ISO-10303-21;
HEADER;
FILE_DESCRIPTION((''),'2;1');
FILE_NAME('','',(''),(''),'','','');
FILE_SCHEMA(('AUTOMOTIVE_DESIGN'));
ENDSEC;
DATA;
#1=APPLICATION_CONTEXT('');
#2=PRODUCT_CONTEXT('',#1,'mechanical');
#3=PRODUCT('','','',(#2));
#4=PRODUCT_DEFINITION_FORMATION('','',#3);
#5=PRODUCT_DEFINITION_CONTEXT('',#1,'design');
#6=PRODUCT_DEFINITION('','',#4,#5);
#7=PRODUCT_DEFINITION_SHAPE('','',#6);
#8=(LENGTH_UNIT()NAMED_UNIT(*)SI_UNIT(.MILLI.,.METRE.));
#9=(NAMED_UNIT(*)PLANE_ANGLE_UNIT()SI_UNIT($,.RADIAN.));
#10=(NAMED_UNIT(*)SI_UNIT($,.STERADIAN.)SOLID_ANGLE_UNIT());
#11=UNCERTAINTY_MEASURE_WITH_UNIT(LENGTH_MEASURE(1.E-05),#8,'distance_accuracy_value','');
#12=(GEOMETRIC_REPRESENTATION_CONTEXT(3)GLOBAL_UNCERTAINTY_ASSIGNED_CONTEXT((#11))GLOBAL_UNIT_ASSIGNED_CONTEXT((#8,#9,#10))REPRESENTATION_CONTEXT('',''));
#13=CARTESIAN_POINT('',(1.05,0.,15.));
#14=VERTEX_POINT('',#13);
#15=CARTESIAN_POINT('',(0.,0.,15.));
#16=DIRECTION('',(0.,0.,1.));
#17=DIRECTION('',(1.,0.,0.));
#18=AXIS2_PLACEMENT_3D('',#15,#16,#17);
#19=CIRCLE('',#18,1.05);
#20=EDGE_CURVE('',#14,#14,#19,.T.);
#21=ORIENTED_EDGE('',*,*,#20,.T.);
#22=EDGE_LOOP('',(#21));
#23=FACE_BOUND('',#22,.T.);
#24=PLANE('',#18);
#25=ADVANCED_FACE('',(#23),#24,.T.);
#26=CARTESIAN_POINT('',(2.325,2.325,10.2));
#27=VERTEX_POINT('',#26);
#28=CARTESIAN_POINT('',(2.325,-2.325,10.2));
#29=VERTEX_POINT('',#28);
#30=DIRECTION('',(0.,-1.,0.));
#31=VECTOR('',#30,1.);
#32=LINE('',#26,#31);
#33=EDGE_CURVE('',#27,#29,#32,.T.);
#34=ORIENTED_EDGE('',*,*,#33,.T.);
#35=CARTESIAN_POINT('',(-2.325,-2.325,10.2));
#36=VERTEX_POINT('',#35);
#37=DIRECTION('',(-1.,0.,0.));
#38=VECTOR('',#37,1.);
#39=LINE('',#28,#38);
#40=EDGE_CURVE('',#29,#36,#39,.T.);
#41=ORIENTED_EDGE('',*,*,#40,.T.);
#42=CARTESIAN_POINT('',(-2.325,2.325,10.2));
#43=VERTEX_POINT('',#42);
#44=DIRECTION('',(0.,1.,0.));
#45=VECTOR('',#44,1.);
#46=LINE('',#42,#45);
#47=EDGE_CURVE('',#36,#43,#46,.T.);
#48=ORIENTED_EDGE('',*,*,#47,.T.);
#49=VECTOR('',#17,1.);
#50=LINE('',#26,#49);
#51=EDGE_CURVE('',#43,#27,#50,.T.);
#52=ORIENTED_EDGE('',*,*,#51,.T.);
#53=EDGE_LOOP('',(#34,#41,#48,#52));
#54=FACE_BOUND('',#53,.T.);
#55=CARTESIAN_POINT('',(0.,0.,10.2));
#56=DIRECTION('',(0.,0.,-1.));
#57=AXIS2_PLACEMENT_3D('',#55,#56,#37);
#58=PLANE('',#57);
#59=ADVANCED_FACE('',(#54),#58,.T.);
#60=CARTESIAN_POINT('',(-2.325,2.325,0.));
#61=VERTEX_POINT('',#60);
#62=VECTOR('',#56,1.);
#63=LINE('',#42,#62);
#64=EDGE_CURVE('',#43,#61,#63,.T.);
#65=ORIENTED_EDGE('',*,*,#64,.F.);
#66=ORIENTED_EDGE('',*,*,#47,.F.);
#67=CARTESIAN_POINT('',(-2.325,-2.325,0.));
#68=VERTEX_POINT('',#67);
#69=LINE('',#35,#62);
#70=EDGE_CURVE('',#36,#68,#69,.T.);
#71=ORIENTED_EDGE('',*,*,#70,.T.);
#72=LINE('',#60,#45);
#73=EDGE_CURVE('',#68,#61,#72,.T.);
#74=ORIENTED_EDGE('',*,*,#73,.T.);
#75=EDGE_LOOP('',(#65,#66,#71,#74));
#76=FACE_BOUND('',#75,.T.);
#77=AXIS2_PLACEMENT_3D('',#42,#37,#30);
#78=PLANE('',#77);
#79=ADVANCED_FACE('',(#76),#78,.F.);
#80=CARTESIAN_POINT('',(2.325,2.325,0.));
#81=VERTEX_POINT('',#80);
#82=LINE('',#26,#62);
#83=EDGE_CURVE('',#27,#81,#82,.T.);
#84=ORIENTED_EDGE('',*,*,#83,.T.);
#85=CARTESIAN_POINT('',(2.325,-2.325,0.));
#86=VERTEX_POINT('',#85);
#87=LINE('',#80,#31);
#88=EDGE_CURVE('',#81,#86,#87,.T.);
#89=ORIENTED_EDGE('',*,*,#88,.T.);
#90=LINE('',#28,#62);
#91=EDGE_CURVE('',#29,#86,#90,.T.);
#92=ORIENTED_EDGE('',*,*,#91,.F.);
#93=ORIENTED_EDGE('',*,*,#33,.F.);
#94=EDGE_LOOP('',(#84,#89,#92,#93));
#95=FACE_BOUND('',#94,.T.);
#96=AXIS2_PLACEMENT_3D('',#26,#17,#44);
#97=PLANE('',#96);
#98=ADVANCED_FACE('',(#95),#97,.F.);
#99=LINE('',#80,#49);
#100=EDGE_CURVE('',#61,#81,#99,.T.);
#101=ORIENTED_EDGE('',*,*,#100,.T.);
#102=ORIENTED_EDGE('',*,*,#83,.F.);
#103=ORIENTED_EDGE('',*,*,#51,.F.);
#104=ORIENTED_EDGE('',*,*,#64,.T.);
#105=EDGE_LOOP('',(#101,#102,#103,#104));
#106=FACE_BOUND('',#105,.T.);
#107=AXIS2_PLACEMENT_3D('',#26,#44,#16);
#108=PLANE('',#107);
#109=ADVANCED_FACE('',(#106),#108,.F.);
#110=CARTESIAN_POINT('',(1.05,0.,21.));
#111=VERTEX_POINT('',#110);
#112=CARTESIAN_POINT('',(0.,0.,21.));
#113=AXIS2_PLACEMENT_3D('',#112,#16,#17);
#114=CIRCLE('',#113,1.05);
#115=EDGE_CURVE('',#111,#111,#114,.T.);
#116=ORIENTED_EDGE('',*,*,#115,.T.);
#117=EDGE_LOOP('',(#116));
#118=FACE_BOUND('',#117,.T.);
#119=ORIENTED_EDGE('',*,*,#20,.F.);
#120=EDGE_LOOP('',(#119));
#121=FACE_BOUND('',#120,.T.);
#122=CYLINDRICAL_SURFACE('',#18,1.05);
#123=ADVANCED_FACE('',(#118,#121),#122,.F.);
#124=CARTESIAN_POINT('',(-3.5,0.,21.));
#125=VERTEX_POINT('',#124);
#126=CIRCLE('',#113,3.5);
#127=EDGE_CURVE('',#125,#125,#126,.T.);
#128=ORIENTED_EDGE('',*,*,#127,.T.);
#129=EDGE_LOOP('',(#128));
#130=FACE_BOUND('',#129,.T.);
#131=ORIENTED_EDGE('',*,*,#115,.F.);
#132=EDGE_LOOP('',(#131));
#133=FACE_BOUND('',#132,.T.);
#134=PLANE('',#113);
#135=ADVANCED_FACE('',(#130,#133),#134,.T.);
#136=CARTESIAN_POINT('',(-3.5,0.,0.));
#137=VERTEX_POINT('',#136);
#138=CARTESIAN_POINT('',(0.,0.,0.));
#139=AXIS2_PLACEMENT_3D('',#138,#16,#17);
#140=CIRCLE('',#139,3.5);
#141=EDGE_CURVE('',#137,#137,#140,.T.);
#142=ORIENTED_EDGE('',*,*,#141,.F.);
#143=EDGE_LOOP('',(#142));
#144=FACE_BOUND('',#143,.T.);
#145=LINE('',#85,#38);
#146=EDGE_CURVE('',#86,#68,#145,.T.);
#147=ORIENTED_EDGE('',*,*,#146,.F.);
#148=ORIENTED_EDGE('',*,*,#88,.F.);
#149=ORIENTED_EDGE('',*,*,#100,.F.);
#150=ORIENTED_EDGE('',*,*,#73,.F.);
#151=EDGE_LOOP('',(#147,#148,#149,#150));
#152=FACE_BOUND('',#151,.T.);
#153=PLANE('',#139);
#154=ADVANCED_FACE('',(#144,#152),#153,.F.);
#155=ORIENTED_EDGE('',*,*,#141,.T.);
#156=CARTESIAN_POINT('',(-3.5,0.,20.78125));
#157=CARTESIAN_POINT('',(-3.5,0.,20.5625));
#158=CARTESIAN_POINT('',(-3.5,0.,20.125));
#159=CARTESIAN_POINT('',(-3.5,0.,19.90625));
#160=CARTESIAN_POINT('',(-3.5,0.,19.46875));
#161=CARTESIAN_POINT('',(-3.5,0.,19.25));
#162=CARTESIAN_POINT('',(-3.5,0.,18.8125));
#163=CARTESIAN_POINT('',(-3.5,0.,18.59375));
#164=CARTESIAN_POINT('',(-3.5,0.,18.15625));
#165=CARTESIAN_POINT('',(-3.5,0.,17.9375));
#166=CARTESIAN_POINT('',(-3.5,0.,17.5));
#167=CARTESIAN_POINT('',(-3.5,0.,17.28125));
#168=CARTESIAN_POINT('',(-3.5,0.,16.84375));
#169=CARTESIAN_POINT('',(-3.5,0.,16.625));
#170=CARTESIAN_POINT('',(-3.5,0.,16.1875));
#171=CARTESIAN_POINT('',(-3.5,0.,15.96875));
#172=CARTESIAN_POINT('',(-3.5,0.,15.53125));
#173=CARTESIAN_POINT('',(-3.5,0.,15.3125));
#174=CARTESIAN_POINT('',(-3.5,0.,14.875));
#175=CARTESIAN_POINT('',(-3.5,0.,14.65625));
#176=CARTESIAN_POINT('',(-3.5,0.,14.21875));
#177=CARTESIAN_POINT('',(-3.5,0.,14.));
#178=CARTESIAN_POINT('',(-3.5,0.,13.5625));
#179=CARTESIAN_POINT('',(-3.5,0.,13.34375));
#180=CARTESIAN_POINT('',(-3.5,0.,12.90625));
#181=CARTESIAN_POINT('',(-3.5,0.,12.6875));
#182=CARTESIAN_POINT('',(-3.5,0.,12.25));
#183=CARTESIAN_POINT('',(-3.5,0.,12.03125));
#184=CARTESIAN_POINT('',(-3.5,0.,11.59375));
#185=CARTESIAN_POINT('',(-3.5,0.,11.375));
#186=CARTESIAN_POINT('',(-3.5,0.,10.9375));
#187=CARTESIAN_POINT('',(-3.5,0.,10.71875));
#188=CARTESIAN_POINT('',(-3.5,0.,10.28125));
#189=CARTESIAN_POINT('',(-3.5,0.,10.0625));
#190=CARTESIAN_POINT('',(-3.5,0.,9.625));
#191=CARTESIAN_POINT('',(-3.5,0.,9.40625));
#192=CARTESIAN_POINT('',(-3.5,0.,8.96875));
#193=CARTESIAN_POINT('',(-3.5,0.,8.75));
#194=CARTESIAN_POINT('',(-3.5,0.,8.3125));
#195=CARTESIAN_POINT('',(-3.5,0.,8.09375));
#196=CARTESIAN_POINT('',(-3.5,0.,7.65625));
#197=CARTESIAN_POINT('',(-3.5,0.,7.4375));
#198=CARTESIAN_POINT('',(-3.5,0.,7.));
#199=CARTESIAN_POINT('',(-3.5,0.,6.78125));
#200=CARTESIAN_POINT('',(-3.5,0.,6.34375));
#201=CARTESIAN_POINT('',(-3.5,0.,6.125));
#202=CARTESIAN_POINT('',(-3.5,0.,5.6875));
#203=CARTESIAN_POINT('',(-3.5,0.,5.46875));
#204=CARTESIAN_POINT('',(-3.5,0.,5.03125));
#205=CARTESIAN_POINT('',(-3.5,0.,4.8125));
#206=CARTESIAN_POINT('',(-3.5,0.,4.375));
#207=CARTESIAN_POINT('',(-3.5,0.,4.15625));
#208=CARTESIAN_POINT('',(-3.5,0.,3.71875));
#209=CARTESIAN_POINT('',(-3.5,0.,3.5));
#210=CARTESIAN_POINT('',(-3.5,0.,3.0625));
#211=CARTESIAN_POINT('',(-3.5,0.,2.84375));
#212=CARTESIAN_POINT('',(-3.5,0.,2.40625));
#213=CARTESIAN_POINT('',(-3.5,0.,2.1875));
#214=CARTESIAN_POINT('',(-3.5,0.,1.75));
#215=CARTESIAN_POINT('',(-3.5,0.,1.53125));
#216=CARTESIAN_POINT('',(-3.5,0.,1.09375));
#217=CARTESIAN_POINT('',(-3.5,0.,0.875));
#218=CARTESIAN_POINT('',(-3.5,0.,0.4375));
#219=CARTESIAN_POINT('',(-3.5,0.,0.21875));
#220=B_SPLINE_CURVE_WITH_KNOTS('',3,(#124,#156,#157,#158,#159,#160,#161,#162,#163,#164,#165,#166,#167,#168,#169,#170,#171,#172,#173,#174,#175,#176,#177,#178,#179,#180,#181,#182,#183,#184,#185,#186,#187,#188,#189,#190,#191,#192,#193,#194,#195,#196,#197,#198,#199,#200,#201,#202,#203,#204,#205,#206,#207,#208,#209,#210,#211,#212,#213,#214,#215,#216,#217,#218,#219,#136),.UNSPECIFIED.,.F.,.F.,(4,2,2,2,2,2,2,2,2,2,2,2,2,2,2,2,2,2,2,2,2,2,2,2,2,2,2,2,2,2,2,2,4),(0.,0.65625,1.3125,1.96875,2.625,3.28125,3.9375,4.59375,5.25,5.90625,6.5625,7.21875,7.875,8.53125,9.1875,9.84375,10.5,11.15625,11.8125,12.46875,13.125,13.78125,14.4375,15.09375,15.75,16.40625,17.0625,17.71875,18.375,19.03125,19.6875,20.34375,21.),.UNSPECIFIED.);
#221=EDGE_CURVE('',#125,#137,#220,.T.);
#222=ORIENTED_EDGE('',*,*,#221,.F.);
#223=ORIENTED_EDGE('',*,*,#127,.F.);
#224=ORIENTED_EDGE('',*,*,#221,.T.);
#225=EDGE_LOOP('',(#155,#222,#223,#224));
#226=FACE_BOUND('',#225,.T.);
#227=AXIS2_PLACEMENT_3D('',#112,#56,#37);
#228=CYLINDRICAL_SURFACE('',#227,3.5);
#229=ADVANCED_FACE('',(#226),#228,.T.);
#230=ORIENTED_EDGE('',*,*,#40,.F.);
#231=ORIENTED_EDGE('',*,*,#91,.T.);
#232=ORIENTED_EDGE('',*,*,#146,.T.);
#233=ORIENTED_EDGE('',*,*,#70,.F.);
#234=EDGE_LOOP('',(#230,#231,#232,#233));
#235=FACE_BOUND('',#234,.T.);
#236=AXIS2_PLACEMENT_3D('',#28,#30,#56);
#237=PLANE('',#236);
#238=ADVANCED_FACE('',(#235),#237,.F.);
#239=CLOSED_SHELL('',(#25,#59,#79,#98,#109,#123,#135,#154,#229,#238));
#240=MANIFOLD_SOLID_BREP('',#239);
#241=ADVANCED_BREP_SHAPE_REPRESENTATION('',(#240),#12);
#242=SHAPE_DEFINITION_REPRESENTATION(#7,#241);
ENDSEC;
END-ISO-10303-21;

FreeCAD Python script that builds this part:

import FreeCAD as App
import Part
import Sketcher
from FreeCAD import Vector


def add_polygon(sketch, points):
    """Adds a closed chain of lines whose ends are joined by coincident constraints."""
    first, n = sketch.GeometryCount, len(points)
    for a, b in zip(points, points[1:] + points[:1]):
        sketch.addGeometry(Part.LineSegment(App.Vector(*a, 0), App.Vector(*b, 0)), False)
    for i in range(n):
        sketch.addConstraint(Sketcher.Constraint("Coincident", first + i, 2, first + (i + 1) % n, 1))

doc = App.newDocument("Part")
body = doc.addObject("PartDesign::Body", "Body")

# Sketch on XY plane
sketch1 = body.newObject("Sketcher::SketchObject", "Sketch")
sketch1.AttachmentSupport = (doc.getObject("XY_Plane"), [""])
sketch1.MapMode = "FlatFace"
sketch1.addGeometry(Part.Circle(Vector(0, 0, 0), Vector(0, 0, 1), 3.5), False)
sketch1.addConstraint(Sketcher.Constraint("Coincident", 0, 3, -1, 1))
sketch1.addConstraint(Sketcher.Constraint("Diameter", 0, 7.0))
pad1 = body.newObject("PartDesign::Pad", "Pad")
pad1.Profile = sketch1
pad1.Length = 21

# Sketch on XY plane
sketch2 = body.newObject("Sketcher::SketchObject", "Sketch001")
sketch2.AttachmentSupport = (doc.getObject("XY_Plane"), [""])
sketch2.MapMode = "FlatFace"
sketch2.AttachmentOffset = App.Placement(Vector(0, 0, 21), App.Rotation())
sketch2.addGeometry(Part.Circle(Vector(0, 0, 0), Vector(0, 0, 1), 1.1), False)
sketch2.addConstraint(Sketcher.Constraint("Coincident", 0, 3, -1, 1))
sketch2.addConstraint(Sketcher.Constraint("Diameter", 0, 2.1))
pocket1 = body.newObject("PartDesign::Pocket", "Pocket")
pocket1.Profile = sketch2
pocket1.Length = 6

# Sketch on XY plane
sketch3 = body.newObject("Sketcher::SketchObject", "Sketch002")
sketch3.AttachmentSupport = (doc.getObject("XY_Plane"), [""])
sketch3.MapMode = "FlatFace"
add_polygon(sketch3, [(2.3, 2.3), (2.3, -2.3), (-2.3, -2.3), (-2.3, 2.3)])  # lines 0-3
sketch3.addConstraint(Sketcher.Constraint("Vertical", 0))
sketch3.addConstraint(Sketcher.Constraint("Horizontal", 1))
sketch3.addConstraint(Sketcher.Constraint("Vertical", 2))
sketch3.addConstraint(Sketcher.Constraint("Horizontal", 3))
sketch3.addConstraint(Sketcher.Constraint("Symmetric", 0, 2, 2, 2, -1, 1))
sketch3.addConstraint(Sketcher.Constraint("Equal", 3, 0))
sketch3.addConstraint(Sketcher.Constraint("DistanceX", 1, 2, 1, 1, 4.65))
pocket2 = body.newObject("PartDesign::Pocket", "Pocket001")
pocket2.Profile = sketch3
pocket2.Length = 10.2
pocket2.Reversed = True

doc.recompute()
